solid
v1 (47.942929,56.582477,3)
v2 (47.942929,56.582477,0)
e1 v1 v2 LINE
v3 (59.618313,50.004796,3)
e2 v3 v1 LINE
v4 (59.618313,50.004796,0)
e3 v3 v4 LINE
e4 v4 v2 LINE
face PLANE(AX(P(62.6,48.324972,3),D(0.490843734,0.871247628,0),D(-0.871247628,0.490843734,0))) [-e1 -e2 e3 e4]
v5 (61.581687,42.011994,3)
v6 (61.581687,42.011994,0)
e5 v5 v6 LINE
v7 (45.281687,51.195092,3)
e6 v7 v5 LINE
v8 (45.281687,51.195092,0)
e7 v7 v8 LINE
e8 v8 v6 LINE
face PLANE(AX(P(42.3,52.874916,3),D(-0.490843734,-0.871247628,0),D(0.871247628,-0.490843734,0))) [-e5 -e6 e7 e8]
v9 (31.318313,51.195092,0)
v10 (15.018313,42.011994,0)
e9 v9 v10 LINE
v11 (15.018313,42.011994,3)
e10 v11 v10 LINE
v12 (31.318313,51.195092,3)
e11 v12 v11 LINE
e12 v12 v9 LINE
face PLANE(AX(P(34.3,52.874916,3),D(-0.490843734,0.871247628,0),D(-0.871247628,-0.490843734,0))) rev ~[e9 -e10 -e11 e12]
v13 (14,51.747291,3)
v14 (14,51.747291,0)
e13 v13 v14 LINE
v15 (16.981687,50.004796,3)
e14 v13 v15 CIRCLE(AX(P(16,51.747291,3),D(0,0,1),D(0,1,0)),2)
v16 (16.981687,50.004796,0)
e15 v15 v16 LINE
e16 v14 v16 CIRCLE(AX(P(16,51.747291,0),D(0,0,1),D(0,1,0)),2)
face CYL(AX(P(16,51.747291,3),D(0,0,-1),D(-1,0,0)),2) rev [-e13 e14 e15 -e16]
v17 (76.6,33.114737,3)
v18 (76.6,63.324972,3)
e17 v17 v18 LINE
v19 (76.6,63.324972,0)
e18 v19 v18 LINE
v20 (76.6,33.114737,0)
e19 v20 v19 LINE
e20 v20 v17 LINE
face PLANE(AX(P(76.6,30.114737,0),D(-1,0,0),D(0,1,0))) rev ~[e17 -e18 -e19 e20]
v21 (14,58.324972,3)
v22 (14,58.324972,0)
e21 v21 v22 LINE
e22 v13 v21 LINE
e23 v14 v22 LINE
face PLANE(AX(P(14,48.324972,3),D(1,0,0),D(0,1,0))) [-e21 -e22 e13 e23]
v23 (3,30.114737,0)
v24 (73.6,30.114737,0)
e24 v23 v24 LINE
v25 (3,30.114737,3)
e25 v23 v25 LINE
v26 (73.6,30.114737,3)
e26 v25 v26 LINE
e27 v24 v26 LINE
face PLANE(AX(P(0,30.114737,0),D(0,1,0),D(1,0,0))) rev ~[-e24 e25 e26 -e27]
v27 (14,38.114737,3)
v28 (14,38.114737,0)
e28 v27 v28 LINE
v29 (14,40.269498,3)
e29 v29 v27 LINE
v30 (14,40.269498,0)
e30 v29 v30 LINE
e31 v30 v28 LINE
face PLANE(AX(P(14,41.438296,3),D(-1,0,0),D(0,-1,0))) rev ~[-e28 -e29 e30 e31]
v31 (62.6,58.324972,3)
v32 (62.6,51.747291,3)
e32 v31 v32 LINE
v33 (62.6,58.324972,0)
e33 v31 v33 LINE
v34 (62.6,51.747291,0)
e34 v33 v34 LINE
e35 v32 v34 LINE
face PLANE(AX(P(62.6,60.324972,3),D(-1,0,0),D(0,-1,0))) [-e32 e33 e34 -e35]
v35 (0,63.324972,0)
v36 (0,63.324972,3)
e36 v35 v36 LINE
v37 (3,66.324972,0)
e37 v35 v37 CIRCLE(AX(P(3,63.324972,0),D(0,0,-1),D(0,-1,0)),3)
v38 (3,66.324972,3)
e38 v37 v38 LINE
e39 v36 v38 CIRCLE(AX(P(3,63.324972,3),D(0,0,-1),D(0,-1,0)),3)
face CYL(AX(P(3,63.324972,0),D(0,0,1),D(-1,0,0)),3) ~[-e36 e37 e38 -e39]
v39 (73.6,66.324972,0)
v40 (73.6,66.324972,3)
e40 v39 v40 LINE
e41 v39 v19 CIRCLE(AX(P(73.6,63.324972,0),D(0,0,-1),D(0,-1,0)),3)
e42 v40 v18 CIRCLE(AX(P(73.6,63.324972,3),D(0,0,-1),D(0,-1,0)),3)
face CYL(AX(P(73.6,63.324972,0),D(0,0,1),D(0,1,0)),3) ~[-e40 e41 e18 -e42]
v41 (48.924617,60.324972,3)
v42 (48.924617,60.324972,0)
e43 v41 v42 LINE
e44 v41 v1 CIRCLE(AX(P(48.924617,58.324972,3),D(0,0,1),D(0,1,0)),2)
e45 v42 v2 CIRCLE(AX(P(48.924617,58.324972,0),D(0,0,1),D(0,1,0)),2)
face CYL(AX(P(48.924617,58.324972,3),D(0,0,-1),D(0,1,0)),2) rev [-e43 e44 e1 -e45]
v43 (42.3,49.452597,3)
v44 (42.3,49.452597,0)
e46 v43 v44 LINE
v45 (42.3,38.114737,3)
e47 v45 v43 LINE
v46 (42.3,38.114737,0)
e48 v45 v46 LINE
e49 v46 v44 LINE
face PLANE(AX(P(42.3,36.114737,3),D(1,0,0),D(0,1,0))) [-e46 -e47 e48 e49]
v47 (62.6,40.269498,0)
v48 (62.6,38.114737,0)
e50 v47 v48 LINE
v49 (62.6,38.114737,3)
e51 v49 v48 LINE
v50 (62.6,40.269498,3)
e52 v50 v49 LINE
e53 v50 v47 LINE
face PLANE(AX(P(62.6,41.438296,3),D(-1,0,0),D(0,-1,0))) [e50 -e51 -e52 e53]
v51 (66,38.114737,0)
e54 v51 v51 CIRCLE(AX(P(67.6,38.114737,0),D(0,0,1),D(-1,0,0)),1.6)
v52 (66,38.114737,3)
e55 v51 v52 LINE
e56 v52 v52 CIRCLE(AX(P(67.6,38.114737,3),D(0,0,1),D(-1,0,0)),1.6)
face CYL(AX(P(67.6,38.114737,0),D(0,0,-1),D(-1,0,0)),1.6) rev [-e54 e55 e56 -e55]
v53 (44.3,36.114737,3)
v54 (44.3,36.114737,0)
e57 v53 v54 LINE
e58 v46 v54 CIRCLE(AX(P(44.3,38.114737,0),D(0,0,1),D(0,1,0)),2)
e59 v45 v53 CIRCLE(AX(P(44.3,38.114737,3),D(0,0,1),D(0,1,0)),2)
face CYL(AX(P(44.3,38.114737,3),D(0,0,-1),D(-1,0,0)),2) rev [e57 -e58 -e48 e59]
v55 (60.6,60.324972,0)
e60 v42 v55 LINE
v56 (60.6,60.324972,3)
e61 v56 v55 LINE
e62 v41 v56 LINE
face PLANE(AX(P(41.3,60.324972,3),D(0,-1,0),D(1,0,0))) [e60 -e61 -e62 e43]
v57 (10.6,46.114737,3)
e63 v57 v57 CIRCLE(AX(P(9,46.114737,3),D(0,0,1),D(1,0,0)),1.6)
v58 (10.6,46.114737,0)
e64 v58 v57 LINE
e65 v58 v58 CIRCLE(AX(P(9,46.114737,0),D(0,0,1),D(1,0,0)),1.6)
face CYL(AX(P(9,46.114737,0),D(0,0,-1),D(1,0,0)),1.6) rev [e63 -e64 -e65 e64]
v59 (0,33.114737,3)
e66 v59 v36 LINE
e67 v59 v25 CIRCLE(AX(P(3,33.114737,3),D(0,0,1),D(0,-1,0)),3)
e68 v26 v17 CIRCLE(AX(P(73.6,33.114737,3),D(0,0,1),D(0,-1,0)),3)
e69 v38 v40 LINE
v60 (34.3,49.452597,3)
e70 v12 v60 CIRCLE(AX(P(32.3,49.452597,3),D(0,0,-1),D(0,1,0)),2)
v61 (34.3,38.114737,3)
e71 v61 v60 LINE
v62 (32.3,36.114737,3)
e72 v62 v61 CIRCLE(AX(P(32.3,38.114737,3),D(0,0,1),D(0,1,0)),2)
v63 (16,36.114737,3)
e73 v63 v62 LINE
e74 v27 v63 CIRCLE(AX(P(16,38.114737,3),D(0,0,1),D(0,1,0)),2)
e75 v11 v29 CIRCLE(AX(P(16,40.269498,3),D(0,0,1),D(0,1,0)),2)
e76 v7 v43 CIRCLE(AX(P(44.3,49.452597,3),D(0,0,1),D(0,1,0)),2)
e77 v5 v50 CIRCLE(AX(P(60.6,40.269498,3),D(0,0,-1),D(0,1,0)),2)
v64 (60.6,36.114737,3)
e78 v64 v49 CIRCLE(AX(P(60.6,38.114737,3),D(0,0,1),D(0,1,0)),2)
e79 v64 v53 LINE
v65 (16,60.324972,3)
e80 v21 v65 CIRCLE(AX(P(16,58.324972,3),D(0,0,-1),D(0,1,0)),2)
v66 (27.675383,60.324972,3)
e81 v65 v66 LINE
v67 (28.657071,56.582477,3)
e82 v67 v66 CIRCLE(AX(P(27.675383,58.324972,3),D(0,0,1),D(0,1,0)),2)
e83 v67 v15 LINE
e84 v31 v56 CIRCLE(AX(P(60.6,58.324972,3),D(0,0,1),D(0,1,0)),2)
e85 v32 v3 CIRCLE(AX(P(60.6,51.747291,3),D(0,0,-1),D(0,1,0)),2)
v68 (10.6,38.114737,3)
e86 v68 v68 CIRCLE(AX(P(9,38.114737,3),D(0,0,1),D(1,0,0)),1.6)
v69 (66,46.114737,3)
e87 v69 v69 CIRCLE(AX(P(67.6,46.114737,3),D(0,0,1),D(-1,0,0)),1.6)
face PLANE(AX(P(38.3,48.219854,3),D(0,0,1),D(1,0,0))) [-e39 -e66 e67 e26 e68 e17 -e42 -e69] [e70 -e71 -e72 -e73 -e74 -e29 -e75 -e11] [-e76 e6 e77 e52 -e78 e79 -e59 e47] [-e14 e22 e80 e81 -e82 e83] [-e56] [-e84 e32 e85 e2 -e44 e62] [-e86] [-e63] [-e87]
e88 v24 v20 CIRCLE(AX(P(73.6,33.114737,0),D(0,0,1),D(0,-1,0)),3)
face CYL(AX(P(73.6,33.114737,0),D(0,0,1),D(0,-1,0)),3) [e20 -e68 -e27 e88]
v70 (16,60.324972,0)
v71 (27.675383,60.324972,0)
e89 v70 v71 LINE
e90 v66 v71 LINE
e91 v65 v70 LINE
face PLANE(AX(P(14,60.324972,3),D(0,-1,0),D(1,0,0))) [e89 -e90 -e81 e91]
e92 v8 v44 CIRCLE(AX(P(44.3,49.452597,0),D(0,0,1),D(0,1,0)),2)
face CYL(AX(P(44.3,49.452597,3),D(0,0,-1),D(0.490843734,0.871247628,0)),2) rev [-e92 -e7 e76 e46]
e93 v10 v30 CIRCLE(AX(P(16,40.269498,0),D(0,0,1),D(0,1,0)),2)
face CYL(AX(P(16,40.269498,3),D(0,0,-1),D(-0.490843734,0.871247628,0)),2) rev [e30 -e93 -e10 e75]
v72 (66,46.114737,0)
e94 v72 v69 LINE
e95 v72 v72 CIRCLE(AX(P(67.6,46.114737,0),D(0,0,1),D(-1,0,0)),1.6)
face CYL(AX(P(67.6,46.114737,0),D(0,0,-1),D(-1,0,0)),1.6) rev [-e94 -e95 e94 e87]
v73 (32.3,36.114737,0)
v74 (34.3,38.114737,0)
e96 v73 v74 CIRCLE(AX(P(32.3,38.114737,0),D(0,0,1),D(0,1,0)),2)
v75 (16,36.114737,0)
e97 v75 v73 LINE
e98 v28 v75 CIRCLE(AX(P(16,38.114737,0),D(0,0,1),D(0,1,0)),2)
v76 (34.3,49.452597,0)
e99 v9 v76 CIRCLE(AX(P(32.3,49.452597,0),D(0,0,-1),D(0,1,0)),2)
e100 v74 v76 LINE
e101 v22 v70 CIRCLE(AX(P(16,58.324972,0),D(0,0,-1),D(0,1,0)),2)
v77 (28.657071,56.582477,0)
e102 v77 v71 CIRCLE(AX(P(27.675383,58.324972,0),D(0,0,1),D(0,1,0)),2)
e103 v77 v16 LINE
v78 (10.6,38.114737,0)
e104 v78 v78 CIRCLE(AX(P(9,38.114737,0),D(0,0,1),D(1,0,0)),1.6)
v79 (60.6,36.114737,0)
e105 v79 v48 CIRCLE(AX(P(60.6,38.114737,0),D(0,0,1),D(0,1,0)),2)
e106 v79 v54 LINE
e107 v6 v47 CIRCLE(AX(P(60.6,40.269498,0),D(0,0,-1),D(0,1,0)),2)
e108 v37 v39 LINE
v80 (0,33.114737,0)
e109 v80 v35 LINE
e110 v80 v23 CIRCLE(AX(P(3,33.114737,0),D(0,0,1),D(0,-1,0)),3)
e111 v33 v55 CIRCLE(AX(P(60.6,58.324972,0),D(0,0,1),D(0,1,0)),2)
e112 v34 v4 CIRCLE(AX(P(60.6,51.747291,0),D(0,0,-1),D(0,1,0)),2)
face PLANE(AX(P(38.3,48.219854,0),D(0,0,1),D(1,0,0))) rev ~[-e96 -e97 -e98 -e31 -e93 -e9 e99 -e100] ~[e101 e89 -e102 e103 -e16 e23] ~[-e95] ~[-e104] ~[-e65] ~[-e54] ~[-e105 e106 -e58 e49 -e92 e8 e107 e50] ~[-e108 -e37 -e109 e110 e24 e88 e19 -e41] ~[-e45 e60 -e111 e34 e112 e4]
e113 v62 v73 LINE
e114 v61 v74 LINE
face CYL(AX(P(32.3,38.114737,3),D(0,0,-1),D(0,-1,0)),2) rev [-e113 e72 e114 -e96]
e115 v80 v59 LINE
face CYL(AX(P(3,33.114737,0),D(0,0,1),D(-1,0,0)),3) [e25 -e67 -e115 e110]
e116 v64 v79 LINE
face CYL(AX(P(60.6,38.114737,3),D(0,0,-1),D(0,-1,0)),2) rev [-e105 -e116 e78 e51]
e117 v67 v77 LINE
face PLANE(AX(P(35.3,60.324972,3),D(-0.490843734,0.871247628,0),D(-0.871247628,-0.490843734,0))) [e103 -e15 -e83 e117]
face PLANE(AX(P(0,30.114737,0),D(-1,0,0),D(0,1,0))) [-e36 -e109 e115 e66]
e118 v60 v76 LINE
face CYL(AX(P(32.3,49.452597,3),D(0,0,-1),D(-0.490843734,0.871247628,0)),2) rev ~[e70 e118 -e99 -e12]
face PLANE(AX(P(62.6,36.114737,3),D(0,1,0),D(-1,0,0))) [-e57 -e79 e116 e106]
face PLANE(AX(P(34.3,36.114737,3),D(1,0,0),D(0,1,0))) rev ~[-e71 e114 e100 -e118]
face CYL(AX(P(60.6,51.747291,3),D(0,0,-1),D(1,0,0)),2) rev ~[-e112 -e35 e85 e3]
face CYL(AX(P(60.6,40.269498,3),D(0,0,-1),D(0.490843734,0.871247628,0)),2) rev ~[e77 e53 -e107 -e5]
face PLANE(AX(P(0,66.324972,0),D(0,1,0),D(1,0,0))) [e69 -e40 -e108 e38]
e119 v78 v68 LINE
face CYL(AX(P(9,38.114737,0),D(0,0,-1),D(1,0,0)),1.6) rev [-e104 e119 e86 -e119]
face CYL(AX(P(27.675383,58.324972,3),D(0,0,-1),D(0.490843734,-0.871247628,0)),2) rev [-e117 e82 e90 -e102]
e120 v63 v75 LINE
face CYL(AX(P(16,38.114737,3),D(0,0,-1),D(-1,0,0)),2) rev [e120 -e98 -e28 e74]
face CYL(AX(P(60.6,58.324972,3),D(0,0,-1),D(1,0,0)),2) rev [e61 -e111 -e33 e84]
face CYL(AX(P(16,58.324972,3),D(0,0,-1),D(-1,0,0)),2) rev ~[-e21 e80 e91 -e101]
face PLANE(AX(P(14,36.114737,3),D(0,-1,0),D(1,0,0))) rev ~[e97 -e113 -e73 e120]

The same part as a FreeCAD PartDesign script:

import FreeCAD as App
import Part
import Sketcher
from FreeCAD import Vector
Q = App.Units.Quantity


def edges_at(feature, points):
    """Names of the edges that pass closest to the given points."""
    edges = feature.Shape.Edges
    near = lambda p: min(range(len(edges)), key=lambda i: edges[i].distToShape(Part.Vertex(*p))[0])
    return sorted({f"Edge{near(p) + 1}" for p in points})


def add_polygon(sketch, points):
    """Adds a closed chain of lines whose ends are joined by coincident constraints."""
    first, n = sketch.GeometryCount, len(points)
    for a, b in zip(points, points[1:] + points[:1]):
        sketch.addGeometry(Part.LineSegment(App.Vector(*a, 0), App.Vector(*b, 0)), False)
    for i in range(n):
        sketch.addConstraint(Sketcher.Constraint("Coincident", first + i, 2, first + (i + 1) % n, 1))

doc = App.newDocument("Part")
body = doc.addObject("PartDesign::Body", "Body")

# Sketch on XY plane
sketch1 = body.newObject("Sketcher::SketchObject", "Sketch")
sketch1.AttachmentSupport = (doc.getObject("XY_Plane"), [""])
sketch1.MapMode = "FlatFace"
add_polygon(sketch1, [(0, 66.3), (0, 30.1), (76.6, 30.1), (76.6, 66.3)])  # lines 0-3
sketch1.addGeometry(Part.Circle(Vector(9, 38.1, 0), Vector(0, 0, 1), 1.6), False)  # 4
sketch1.addGeometry(Part.Circle(Vector(67.6, 38.1, 0), Vector(0, 0, 1), 1.6), False)  # 5
sketch1.addGeometry(Part.Circle(Vector(9, 46.1, 0), Vector(0, 0, 1), 1.6), False)  # 6
sketch1.addGeometry(Part.Circle(Vector(67.6, 46.1, 0), Vector(0, 0, 1), 1.6), False)  # 7
sketch1.addConstraint([
    Sketcher.Constraint("Vertical", 0),
    Sketcher.Constraint("Horizontal", 1),
    Sketcher.Constraint("Vertical", 2),
    Sketcher.Constraint("Horizontal", 3),
    Sketcher.Constraint("Equal", 4, 5),
    Sketcher.Constraint("Equal", 5, 6),
    Sketcher.Constraint("Equal", 6, 7),
    Sketcher.Constraint("PointOnObject", 0, 2, -2),
    Sketcher.Constraint("Horizontal", 4, 3, 5, 3),
    Sketcher.Constraint("Horizontal", 6, 3, 7, 3),
    Sketcher.Constraint("Vertical", 4, 3, 6, 3),
    Sketcher.Constraint("Vertical", 5, 3, 7, 3),
    Sketcher.Constraint("Diameter", 4, Q("3.2 mm")),
    Sketcher.Constraint("DistanceX", 1, 1, 1, 2, Q("76.6 mm")),
    Sketcher.Constraint("DistanceX", -1, 1, 4, 3, Q("9 mm")),
    Sketcher.Constraint("DistanceY", 4, 3, 6, 3, Q("8 mm")),
    Sketcher.Constraint("DistanceY", 0, 2, 4, 3, Q("8 mm")),
    Sketcher.Constraint("DistanceX", 5, 3, 1, 2, Q("9 mm")),
    Sketcher.Constraint("DistanceY", 0, 2, 0, 1, Q("36.210236 mm")),
    Sketcher.Constraint("DistanceY", -1, 1, 4, 3, Q("38.114737 mm")),
])
pad1 = body.newObject("PartDesign::Pad", "Pad")
pad1.Profile = sketch1
pad1.Length = 3
doc.recompute()

fillet = body.newObject("PartDesign::Fillet", "Fillet")
fillet.Base = (pad1, edges_at(pad1, [
    (0, 66.325, 1.5),
    (76.6, 66.325, 1.5),
    (76.6, 30.115, 1.5),
    (0, 30.115, 1.5),
]))
fillet.Radius = 3

# Sketch on XY plane
sketch2 = body.newObject("Sketcher::SketchObject", "Sketch001")
sketch2.AttachmentSupport = (doc.getObject("XY_Plane"), [""])
sketch2.MapMode = "FlatFace"
sketch2.AttachmentOffset = App.Placement(Vector(0, 0, 3), App.Rotation())
add_polygon(sketch2, [(35, 60), (14, 60), (14, 48)])  # lines 0-2
add_polygon(sketch2, [(41, 60), (63, 48), (63, 60)])  # lines 3-5
add_polygon(sketch2, [(34, 53), (14, 41), (14, 36), (34, 36)])  # lines 6-9
add_polygon(sketch2, [(63, 36), (63, 41), (42, 53), (42, 36)])  # lines 10-13
sketch2.addConstraint([
    Sketcher.Constraint("Horizontal", 0),
    Sketcher.Constraint("Vertical", 1),
    Sketcher.Constraint("Vertical", 4),
    Sketcher.Constraint("Horizontal", 5),
    Sketcher.Constraint("Vertical", 7),
    Sketcher.Constraint("Horizontal", 8),
    Sketcher.Constraint("Vertical", 9),
    Sketcher.Constraint("Vertical", 10),
    Sketcher.Constraint("Vertical", 12),
    Sketcher.Constraint("Horizontal", 13),
    Sketcher.Constraint("Parallel", 2, 6),
    Sketcher.Constraint("Parallel", 3, 11),
    Sketcher.Constraint("Horizontal", 1, 2, 3, 2),
    Sketcher.Constraint("Horizontal", 2, 2, 4, 2),
    Sketcher.Constraint("Horizontal", 6, 2, 10, 2),
    Sketcher.Constraint("Horizontal", 9, 2, 11, 2),
    Sketcher.Constraint("Horizontal", 8, 2, 12, 2),
    Sketcher.Constraint("Vertical", 1, 2, 6, 2),
    Sketcher.Constraint("Vertical", 4, 2, 10, 2),
    Sketcher.Constraint("Equal", 0, 5),
    Sketcher.Constraint("DistanceY", 1, 2, 1, 1, Q("12 mm")),
    Sketcher.Constraint("DistanceX", 0, 2, 0, 1, Q("21.3 mm")),
    Sketcher.Constraint("DistanceX", 8, 1, 8, 2, Q("20.3 mm")),
    Sketcher.Constraint("DistanceX", -1, 1, 0, 2, Q("14 mm")),
    Sketcher.Constraint("DistanceX", 2, 2, 5, 2, Q("6 mm")),
    Sketcher.Constraint("DistanceY", 7, 2, 7, 1, Q("5.32356 mm")),
    Sketcher.Constraint("DistanceY", -1, 1, 0, 2, Q("60.324972 mm")),
    Sketcher.Constraint("DistanceY", -1, 1, 6, 2, Q("41.438296 mm")),
])
pocket1 = body.newObject("PartDesign::Pocket", "Pocket")
pocket1.Profile = sketch2
pocket1.Type = "ThroughAll"
doc.recompute()

fillet2 = body.newObject("PartDesign::Fillet", "Fillet001")
fillet2.Base = (pocket1, edges_at(pocket1, [
    (42.3, 52.875, 1.5),
    (62.6, 41.438, 1.5),
    (62.6, 36.115, 1.5),
    (42.3, 36.115, 1.5),
    (34.3, 36.115, 1.5),
    (14, 36.115, 1.5),
    (14, 41.438, 1.5),
    (34.3, 52.875, 1.5),
    (62.6, 60.325, 1.5),
    (62.6, 48.325, 1.5),
    (41.3, 60.325, 1.5),
    (14, 48.325, 1.5),
    (14, 60.325, 1.5),
    (35.3, 60.325, 1.5),
]))
fillet2.Radius = 2

doc.recompute()
